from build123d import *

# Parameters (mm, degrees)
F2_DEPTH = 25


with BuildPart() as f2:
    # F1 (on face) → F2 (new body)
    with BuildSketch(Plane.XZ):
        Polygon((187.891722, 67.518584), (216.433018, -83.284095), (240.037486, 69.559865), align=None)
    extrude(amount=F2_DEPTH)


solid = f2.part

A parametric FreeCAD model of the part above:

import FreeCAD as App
import Part
import Sketcher

V = App.Vector

doc = App.newDocument("Part")
body = doc.addObject("PartDesign::Body", "Body")

sketch1 = body.newObject("Sketcher::SketchObject", "Sketch")
sketch1.AttachmentSupport = (doc.getObject("XZ_Plane"), [""])
sketch1.MapMode = "FlatFace"
sketch1.addGeometry([
    Part.LineSegment(V(188, 68, 0), V(216, -83, 0)),
    Part.LineSegment(V(216, -83, 0), V(240, 70, 0)),
    Part.LineSegment(V(240, 70, 0), V(188, 68, 0)),
], False)
sketch1.addConstraint([
    Sketcher.Constraint("Coincident", 0, 2, 1, 1),
    Sketcher.Constraint("Coincident", 1, 2, 2, 1),
    Sketcher.Constraint("Coincident", 2, 2, 0, 1),
    Sketcher.Constraint("Distance", 1, 154.655899),
    Sketcher.Constraint("DistanceX", -1, 1, 0, 2, 216.433018),
    Sketcher.Constraint("DistanceX", -1, 1, 2, 2, 187.891722),
    Sketcher.Constraint("DistanceY", 0, 2, 1, 2, 152.84396),
    Sketcher.Constraint("DistanceY", 2, 2, 1, 2, 2.041281),
    Sketcher.Constraint("DistanceY", 0, 2, -1, 1, 83.284095),
])
pad1 = body.newObject("PartDesign::Pad", "Pad")
pad1.Profile = sketch1
pad1.Length = 25

doc.recompute()
